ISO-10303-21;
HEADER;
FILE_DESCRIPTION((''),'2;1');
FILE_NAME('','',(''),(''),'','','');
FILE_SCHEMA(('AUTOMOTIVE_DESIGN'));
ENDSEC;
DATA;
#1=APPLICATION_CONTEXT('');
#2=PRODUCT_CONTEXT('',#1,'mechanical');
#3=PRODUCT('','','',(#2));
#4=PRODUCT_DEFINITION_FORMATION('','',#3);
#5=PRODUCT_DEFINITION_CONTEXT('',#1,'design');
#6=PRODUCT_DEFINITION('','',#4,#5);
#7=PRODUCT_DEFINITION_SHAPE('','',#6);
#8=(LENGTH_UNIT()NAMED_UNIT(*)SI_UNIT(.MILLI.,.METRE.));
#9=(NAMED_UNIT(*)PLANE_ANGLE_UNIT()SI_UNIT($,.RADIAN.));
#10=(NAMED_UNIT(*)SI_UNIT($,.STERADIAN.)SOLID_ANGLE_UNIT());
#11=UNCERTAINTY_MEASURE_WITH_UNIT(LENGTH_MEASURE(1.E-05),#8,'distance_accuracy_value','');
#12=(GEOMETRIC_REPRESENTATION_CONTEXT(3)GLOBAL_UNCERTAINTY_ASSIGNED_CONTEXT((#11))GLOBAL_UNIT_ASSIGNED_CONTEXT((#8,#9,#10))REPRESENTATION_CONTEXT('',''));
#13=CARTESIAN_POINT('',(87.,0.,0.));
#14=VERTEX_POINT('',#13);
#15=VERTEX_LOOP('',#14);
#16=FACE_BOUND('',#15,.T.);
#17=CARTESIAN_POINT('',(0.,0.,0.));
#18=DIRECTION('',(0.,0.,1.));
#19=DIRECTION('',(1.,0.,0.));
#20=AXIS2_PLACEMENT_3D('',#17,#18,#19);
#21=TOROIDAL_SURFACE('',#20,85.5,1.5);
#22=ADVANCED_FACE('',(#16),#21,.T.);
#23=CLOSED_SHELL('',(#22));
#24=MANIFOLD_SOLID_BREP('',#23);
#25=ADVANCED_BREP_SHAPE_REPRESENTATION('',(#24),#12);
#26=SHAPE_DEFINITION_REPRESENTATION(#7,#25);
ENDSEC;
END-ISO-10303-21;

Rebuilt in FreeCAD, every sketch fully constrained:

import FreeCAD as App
import Part
import Sketcher
from FreeCAD import Vector

doc = App.newDocument("Part")
body = doc.addObject("PartDesign::Body", "Body")

sketch1 = body.newObject("Sketcher::SketchObject", "Sketch")
sketch1.AttachmentSupport = (doc.getObject("YZ_Plane"), [""])
sketch1.MapMode = "FlatFace"
sketch1.addGeometry(Part.Circle(Vector(85.5, 0, 0), Vector(0, 0, 1), 1.5), False)
sketch1.addConstraint([
    Sketcher.Constraint("PointOnObject", 0, 3, -1),
    Sketcher.Constraint("Diameter", 0, 3.0),
    Sketcher.Constraint("DistanceX", -1, 1, 0, 3, 85.5),
])
revolution = body.newObject("PartDesign::Revolution", "Revolution")
revolution.Profile = sketch1
revolution.ReferenceAxis = (sketch1, ["V_Axis"])
revolution.Angle = 360

doc.recompute()
